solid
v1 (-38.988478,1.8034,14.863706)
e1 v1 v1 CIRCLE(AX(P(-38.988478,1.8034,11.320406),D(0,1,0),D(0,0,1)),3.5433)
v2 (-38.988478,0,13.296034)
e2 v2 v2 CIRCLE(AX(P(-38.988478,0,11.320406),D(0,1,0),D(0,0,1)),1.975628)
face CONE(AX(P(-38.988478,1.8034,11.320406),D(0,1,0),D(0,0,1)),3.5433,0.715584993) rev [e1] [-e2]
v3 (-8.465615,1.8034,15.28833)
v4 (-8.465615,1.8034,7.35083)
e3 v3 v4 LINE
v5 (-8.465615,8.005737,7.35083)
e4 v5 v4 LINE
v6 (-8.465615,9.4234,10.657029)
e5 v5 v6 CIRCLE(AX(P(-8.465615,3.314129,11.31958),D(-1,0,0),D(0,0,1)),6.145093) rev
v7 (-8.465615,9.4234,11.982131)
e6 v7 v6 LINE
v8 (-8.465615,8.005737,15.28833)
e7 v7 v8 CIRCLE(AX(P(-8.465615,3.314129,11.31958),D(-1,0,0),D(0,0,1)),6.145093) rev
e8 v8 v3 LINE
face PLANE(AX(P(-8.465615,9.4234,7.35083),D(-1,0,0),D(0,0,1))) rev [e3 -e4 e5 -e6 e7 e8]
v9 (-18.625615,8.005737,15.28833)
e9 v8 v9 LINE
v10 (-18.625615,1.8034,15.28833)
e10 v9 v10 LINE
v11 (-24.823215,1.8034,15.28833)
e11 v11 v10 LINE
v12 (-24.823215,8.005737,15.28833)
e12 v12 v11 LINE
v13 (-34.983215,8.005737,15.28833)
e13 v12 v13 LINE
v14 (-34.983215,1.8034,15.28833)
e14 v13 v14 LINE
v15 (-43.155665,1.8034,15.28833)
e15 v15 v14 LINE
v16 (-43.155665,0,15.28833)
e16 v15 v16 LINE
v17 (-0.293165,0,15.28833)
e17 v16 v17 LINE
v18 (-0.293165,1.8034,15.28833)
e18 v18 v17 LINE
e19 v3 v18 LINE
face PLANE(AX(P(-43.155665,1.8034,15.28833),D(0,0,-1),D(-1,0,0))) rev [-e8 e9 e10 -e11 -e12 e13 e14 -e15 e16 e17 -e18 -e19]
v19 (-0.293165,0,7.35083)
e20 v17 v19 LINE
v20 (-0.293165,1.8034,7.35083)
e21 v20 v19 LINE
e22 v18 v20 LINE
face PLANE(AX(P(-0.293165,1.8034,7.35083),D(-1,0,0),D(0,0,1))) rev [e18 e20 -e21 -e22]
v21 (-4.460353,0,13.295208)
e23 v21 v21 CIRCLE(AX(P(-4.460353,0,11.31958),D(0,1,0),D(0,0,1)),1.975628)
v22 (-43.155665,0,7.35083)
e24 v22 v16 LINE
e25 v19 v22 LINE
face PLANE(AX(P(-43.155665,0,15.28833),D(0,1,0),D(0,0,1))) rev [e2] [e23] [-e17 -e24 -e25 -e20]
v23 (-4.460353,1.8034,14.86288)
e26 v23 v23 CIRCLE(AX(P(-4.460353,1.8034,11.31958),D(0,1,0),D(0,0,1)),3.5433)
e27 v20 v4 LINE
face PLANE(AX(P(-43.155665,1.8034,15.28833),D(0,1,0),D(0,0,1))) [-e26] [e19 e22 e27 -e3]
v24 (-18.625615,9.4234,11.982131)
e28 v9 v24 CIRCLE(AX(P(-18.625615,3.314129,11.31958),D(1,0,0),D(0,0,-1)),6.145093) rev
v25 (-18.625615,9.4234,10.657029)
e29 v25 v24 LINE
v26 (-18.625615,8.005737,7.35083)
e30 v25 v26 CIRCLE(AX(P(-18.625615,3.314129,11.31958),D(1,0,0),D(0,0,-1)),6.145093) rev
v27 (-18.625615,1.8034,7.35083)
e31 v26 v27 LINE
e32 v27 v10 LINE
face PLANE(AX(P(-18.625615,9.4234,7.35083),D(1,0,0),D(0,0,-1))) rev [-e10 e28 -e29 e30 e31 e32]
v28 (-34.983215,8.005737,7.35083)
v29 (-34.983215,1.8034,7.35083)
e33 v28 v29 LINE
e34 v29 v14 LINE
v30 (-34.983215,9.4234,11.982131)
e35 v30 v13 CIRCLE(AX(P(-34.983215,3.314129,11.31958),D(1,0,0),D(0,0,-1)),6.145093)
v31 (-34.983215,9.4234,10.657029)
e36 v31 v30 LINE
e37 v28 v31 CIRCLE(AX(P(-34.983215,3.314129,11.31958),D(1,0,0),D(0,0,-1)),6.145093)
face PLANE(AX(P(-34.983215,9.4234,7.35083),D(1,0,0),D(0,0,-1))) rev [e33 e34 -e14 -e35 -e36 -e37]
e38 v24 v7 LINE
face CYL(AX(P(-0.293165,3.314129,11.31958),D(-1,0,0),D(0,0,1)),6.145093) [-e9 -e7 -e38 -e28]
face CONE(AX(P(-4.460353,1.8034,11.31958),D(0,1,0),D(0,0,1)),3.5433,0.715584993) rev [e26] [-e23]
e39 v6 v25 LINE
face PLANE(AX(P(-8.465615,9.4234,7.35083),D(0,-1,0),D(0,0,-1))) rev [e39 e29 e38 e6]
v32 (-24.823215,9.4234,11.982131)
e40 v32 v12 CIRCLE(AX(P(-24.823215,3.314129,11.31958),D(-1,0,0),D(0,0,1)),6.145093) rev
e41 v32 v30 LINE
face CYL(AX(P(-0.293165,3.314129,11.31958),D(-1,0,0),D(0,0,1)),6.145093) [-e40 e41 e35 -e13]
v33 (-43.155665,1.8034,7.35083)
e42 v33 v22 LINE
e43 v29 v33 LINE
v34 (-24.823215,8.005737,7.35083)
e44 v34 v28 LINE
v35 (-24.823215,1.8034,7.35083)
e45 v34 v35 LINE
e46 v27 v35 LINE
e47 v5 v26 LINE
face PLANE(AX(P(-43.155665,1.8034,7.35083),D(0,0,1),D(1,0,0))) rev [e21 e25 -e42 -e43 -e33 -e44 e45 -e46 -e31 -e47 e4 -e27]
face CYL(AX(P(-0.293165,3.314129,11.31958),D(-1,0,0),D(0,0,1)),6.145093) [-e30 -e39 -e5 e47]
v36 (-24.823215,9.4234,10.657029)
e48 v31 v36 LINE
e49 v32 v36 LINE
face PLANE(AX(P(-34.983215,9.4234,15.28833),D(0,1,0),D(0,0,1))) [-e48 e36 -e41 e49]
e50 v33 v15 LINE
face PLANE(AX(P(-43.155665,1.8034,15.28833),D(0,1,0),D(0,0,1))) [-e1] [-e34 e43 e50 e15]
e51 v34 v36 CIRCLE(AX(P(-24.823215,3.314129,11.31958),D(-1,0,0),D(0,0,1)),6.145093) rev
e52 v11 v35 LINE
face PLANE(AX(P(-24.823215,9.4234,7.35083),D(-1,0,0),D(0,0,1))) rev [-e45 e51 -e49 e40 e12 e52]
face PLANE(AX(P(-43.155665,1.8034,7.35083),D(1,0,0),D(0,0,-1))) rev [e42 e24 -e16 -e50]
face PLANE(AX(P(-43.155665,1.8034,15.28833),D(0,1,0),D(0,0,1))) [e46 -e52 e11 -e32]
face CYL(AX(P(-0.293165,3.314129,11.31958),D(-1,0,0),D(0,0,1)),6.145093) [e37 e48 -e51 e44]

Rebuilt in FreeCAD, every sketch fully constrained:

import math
import FreeCAD as App
import Part
import Sketcher
Q = App.Units.Quantity

doc = App.newDocument("Part")
body = doc.addObject("PartDesign::Body", "Body")

# Sketch on XZ plane
sketch1 = body.newObject("Sketcher::SketchObject", "Sketch")
sketch1.AttachmentSupport = (doc.getObject("XZ_Plane"), [""])
sketch1.MapMode = "FlatFace"
sketch1.addGeometry(Part.LineSegment(App.Vector(-43.155665, 7.35083, 0), App.Vector(-43.155665, 15.28833, 0)), False)
sketch1.addGeometry(Part.LineSegment(App.Vector(-43.155665, 15.28833, 0), App.Vector(-0.293165, 15.28833, 0)), False)
sketch1.addGeometry(Part.LineSegment(App.Vector(-0.293165, 15.28833, 0), App.Vector(-0.293165, 7.35083, 0)), False)
sketch1.addGeometry(Part.LineSegment(App.Vector(-0.293165, 7.35083, 0), App.Vector(-43.155665, 7.35083, 0)), False)
sketch1.addConstraint(Sketcher.Constraint("Coincident", 0, 2, 1, 1))
sketch1.addConstraint(Sketcher.Constraint("Coincident", 1, 2, 2, 1))
sketch1.addConstraint(Sketcher.Constraint("Coincident", 2, 2, 3, 1))
sketch1.addConstraint(Sketcher.Constraint("Coincident", 3, 2, 0, 1))
sketch1.addConstraint(Sketcher.Constraint("Vertical", 0))
sketch1.addConstraint(Sketcher.Constraint("Horizontal", 1))
sketch1.addConstraint(Sketcher.Constraint("Vertical", 2))
sketch1.addConstraint(Sketcher.Constraint("Horizontal", 3))
sketch1.addConstraint(Sketcher.Constraint("DistanceX", 1, 1, 1, 2, Q("1.6875 in")))
sketch1.addConstraint(Sketcher.Constraint("DistanceY", 0, 1, 0, 2, Q("0.3125 in")))
sketch1.addConstraint(Sketcher.Constraint("DistanceY", -1, 1, 0, 2, Q("15.28833 mm")))
sketch1.addConstraint(Sketcher.Constraint("DistanceX", 0, 2, -1, 1, Q("43.155665 mm")))
pad1 = body.newObject("PartDesign::Pad", "Pad")
pad1.Profile = sketch1
pad1.Length = Q("0.071 in")
pad1.Reversed = True

# Sketch on XZ plane
sketch2 = body.newObject("Sketcher::SketchObject", "Sketch001")
sketch2.AttachmentSupport = (doc.getObject("XZ_Plane"), [""])
sketch2.MapMode = "FlatFace"
sketch2.AttachmentOffset = App.Placement(App.Vector(0, 0, -0.071 * 25.4), App.Rotation())
sketch2.addGeometry(Part.LineSegment(App.Vector(-34.983215, 7.35083, 0), App.Vector(-34.983215, 15.28833, 0)), False)
sketch2.addGeometry(Part.LineSegment(App.Vector(-34.983215, 15.28833, 0), App.Vector(-24.823215, 15.28833, 0)), False)
sketch2.addGeometry(Part.LineSegment(App.Vector(-24.823215, 15.28833, 0), App.Vector(-24.823215, 7.35083, 0)), False)
sketch2.addGeometry(Part.LineSegment(App.Vector(-24.823215, 7.35083, 0), App.Vector(-34.983215, 7.35083, 0)), False)
sketch2.addGeometry(Part.LineSegment(App.Vector(-18.625615, 7.35083, 0), App.Vector(-18.625615, 15.28833, 0)), False)
sketch2.addGeometry(Part.LineSegment(App.Vector(-18.625615, 15.28833, 0), App.Vector(-8.465615, 15.28833, 0)), False)
sketch2.addGeometry(Part.LineSegment(App.Vector(-8.465615, 15.28833, 0), App.Vector(-8.465615, 7.35083, 0)), False)
sketch2.addGeometry(Part.LineSegment(App.Vector(-8.465615, 7.35083, 0), App.Vector(-18.625615, 7.35083, 0)), False)
sketch2.addConstraint(Sketcher.Constraint("Coincident", 0, 2, 1, 1))
sketch2.addConstraint(Sketcher.Constraint("Coincident", 1, 2, 2, 1))
sketch2.addConstraint(Sketcher.Constraint("Coincident", 2, 2, 3, 1))
sketch2.addConstraint(Sketcher.Constraint("Coincident", 3, 2, 0, 1))
sketch2.addConstraint(Sketcher.Constraint("Coincident", 4, 2, 5, 1))
sketch2.addConstraint(Sketcher.Constraint("Coincident", 5, 2, 6, 1))
sketch2.addConstraint(Sketcher.Constraint("Coincident", 6, 2, 7, 1))
sketch2.addConstraint(Sketcher.Constraint("Coincident", 7, 2, 4, 1))
sketch2.addConstraint(Sketcher.Constraint("Vertical", 0))
sketch2.addConstraint(Sketcher.Constraint("Horizontal", 1))
sketch2.addConstraint(Sketcher.Constraint("Vertical", 2))
sketch2.addConstraint(Sketcher.Constraint("Horizontal", 3))
sketch2.addConstraint(Sketcher.Constraint("Vertical", 4))
sketch2.addConstraint(Sketcher.Constraint("Horizontal", 5))
sketch2.addConstraint(Sketcher.Constraint("Vertical", 6))
sketch2.addConstraint(Sketcher.Constraint("Horizontal", 7))
sketch2.addConstraint(Sketcher.Constraint("Horizontal", 1, 2, 4, 2))
sketch2.addConstraint(Sketcher.Constraint("Horizontal", 3, 2, 6, 2))
sketch2.addConstraint(Sketcher.Constraint("Equal", 3, 5))
sketch2.addConstraint(Sketcher.Constraint("DistanceX", 1, 1, 1, 2, Q("0.4 in")))
sketch2.addConstraint(Sketcher.Constraint("DistanceY", 0, 1, 0, 2, Q("0.3125 in")))
sketch2.addConstraint(Sketcher.Constraint("DistanceX", 1, 2, 4, 2, Q("0.244 in")))
sketch2.addConstraint(Sketcher.Constraint("DistanceY", -1, 1, 0, 2, Q("15.28833 mm")))
sketch2.addConstraint(Sketcher.Constraint("DistanceX", 0, 2, -1, 1, Q("34.983215 mm")))
pad2 = body.newObject("PartDesign::Pad", "Pad001")
pad2.Profile = sketch2
pad2.Length = Q("0.3 in")
pad2.Reversed = True

# Sketch on YZ plane
sketch3 = body.newObject("Sketcher::SketchObject", "Sketch002")
sketch3.AttachmentSupport = (doc.getObject("YZ_Plane"), [""])
sketch3.MapMode = "FlatFace"
sketch3.AttachmentOffset = App.Placement(App.Vector(0, 0, -34.983215), App.Rotation())
sketch3.addGeometry(Part.LineSegment(App.Vector(10.117841, 7.35083, 0), App.Vector(8.005737, 7.35083, 0)), False)
sketch3.addGeometry(Part.ArcOfCircle(Part.Circle(App.Vector(3.314129, 11.31958, 0), App.Vector(0, 0, 1), 6.145093), math.radians(-40.228723), math.radians(40.228723)), False)
sketch3.addGeometry(Part.LineSegment(App.Vector(8.005737, 15.28833, 0), App.Vector(10.117841, 15.28833, 0)), False)
sketch3.addGeometry(Part.LineSegment(App.Vector(10.117841, 15.28833, 0), App.Vector(10.117841, 7.35083, 0)), False)
sketch3.addConstraint(Sketcher.Constraint("Coincident", 0, 2, 1, 1))
sketch3.addConstraint(Sketcher.Constraint("Coincident", 1, 2, 2, 1))
sketch3.addConstraint(Sketcher.Constraint("Coincident", 2, 2, 3, 1))
sketch3.addConstraint(Sketcher.Constraint("Coincident", 3, 2, 0, 1))
sketch3.addConstraint(Sketcher.Constraint("Horizontal", 0))
sketch3.addConstraint(Sketcher.Constraint("Horizontal", 2))
sketch3.addConstraint(Sketcher.Constraint("Vertical", 3))
sketch3.addConstraint(Sketcher.Constraint("Vertical", 0, 2, 1, 2))
sketch3.addConstraint(Sketcher.Constraint("DistanceY", 3, 2, 3, 1, Q("0.3125 in")))
sketch3.addConstraint(Sketcher.Constraint("Radius", 1, Q("6.145093 mm")))
sketch3.addConstraint(Sketcher.Constraint("DistanceX", 0, 2, 0, 1, Q("2.112104 mm")))
sketch3.addConstraint(Sketcher.Constraint("DistanceX", -1, 1, 1, 3, Q("3.314129 mm")))
sketch3.addConstraint(Sketcher.Constraint("DistanceY", -1, 1, 1, 3, Q("11.31958 mm")))
pocket1 = body.newObject("PartDesign::Pocket", "Pocket")
pocket1.Profile = sketch3
pocket1.Type = "ThroughAll"
pocket1.Reversed = True

# Sketch on YZ plane
sketch4 = body.newObject("Sketcher::SketchObject", "Sketch003")
sketch4.AttachmentSupport = (doc.getObject("YZ_Plane"), [""])
sketch4.MapMode = "FlatFace"
sketch4.AttachmentOffset = App.Placement(App.Vector(0, 0, -4.460353), App.Rotation())
sketch4.addGeometry(Part.LineSegment(App.Vector(0, 11.31958, 0), App.Vector(1.8034, 11.31958, 0)), False)
sketch4.addGeometry(Part.LineSegment(App.Vector(1.8034, 11.31958, 0), App.Vector(1.8034, 14.86288, 0)), False)
sketch4.addGeometry(Part.LineSegment(App.Vector(1.8034, 14.86288, 0), App.Vector(-0.088553, 13.21823, 0)), False)
sketch4.addGeometry(Part.LineSegment(App.Vector(-0.088553, 13.21823, 0), App.Vector(0, 13.21823, 0)), False)
sketch4.addGeometry(Part.LineSegment(App.Vector(0, 13.21823, 0), App.Vector(0, 11.31958, 0)), False)
sketch4.addGeometry(Part.LineSegment(App.Vector(1.8034, 11.31958, 0), App.Vector(-0.088553, 11.31958, 0)), True)  # axis
sketch4.addConstraint(Sketcher.Constraint("Coincident", 0, 2, 1, 1))
sketch4.addConstraint(Sketcher.Constraint("Coincident", 1, 2, 2, 1))
sketch4.addConstraint(Sketcher.Constraint("Coincident", 2, 2, 3, 1))
sketch4.addConstraint(Sketcher.Constraint("Coincident", 3, 2, 4, 1))
sketch4.addConstraint(Sketcher.Constraint("Coincident", 4, 2, 0, 1))
sketch4.addConstraint(Sketcher.Constraint("Horizontal", 0))
sketch4.addConstraint(Sketcher.Constraint("Vertical", 1))
sketch4.addConstraint(Sketcher.Constraint("Horizontal", 3))
sketch4.addConstraint(Sketcher.Constraint("Vertical", 4))
sketch4.addConstraint(Sketcher.Constraint("Horizontal", 5))
sketch4.addConstraint(Sketcher.Constraint("Coincident", 5, 1, 0, 2))
sketch4.addConstraint(Sketcher.Constraint("PointOnObject", 3, 2, -2))
sketch4.addConstraint(Sketcher.Constraint("Vertical", 2, 2, 5, 2))
sketch4.addConstraint(Sketcher.Constraint("Angle", 2, Q("-139 deg")))
sketch4.addConstraint(Sketcher.Constraint("DistanceX", 0, 1, 0, 2, Q("0.071 in")))
sketch4.addConstraint(Sketcher.Constraint("DistanceY", 1, 1, 1, 2, Q("0.1395 in")))
sketch4.addConstraint(Sketcher.Constraint("DistanceY", 4, 2, 4, 1, Q("1.89865 mm")))
sketch4.addConstraint(Sketcher.Constraint("DistanceY", -1, 1, 0, 2, Q("11.31958 mm")))
groove = body.newObject("PartDesign::Groove", "Groove")
groove.Profile = sketch4
groove.ReferenceAxis = (sketch4, ["Axis0"])
groove.Angle = 360
doc.recompute()

linearpattern = body.newObject("PartDesign::LinearPattern", "LinearPattern")
linearpattern.Originals = [groove]
linearpattern.Direction = (doc.getObject("X_Axis"), [""])
linearpattern.Mode = "offset"
linearpattern.Offset = Q("1.359375 in")
linearpattern.Occurrences = 2
linearpattern.Reversed = True
body.Tip = linearpattern

doc.recompute()
